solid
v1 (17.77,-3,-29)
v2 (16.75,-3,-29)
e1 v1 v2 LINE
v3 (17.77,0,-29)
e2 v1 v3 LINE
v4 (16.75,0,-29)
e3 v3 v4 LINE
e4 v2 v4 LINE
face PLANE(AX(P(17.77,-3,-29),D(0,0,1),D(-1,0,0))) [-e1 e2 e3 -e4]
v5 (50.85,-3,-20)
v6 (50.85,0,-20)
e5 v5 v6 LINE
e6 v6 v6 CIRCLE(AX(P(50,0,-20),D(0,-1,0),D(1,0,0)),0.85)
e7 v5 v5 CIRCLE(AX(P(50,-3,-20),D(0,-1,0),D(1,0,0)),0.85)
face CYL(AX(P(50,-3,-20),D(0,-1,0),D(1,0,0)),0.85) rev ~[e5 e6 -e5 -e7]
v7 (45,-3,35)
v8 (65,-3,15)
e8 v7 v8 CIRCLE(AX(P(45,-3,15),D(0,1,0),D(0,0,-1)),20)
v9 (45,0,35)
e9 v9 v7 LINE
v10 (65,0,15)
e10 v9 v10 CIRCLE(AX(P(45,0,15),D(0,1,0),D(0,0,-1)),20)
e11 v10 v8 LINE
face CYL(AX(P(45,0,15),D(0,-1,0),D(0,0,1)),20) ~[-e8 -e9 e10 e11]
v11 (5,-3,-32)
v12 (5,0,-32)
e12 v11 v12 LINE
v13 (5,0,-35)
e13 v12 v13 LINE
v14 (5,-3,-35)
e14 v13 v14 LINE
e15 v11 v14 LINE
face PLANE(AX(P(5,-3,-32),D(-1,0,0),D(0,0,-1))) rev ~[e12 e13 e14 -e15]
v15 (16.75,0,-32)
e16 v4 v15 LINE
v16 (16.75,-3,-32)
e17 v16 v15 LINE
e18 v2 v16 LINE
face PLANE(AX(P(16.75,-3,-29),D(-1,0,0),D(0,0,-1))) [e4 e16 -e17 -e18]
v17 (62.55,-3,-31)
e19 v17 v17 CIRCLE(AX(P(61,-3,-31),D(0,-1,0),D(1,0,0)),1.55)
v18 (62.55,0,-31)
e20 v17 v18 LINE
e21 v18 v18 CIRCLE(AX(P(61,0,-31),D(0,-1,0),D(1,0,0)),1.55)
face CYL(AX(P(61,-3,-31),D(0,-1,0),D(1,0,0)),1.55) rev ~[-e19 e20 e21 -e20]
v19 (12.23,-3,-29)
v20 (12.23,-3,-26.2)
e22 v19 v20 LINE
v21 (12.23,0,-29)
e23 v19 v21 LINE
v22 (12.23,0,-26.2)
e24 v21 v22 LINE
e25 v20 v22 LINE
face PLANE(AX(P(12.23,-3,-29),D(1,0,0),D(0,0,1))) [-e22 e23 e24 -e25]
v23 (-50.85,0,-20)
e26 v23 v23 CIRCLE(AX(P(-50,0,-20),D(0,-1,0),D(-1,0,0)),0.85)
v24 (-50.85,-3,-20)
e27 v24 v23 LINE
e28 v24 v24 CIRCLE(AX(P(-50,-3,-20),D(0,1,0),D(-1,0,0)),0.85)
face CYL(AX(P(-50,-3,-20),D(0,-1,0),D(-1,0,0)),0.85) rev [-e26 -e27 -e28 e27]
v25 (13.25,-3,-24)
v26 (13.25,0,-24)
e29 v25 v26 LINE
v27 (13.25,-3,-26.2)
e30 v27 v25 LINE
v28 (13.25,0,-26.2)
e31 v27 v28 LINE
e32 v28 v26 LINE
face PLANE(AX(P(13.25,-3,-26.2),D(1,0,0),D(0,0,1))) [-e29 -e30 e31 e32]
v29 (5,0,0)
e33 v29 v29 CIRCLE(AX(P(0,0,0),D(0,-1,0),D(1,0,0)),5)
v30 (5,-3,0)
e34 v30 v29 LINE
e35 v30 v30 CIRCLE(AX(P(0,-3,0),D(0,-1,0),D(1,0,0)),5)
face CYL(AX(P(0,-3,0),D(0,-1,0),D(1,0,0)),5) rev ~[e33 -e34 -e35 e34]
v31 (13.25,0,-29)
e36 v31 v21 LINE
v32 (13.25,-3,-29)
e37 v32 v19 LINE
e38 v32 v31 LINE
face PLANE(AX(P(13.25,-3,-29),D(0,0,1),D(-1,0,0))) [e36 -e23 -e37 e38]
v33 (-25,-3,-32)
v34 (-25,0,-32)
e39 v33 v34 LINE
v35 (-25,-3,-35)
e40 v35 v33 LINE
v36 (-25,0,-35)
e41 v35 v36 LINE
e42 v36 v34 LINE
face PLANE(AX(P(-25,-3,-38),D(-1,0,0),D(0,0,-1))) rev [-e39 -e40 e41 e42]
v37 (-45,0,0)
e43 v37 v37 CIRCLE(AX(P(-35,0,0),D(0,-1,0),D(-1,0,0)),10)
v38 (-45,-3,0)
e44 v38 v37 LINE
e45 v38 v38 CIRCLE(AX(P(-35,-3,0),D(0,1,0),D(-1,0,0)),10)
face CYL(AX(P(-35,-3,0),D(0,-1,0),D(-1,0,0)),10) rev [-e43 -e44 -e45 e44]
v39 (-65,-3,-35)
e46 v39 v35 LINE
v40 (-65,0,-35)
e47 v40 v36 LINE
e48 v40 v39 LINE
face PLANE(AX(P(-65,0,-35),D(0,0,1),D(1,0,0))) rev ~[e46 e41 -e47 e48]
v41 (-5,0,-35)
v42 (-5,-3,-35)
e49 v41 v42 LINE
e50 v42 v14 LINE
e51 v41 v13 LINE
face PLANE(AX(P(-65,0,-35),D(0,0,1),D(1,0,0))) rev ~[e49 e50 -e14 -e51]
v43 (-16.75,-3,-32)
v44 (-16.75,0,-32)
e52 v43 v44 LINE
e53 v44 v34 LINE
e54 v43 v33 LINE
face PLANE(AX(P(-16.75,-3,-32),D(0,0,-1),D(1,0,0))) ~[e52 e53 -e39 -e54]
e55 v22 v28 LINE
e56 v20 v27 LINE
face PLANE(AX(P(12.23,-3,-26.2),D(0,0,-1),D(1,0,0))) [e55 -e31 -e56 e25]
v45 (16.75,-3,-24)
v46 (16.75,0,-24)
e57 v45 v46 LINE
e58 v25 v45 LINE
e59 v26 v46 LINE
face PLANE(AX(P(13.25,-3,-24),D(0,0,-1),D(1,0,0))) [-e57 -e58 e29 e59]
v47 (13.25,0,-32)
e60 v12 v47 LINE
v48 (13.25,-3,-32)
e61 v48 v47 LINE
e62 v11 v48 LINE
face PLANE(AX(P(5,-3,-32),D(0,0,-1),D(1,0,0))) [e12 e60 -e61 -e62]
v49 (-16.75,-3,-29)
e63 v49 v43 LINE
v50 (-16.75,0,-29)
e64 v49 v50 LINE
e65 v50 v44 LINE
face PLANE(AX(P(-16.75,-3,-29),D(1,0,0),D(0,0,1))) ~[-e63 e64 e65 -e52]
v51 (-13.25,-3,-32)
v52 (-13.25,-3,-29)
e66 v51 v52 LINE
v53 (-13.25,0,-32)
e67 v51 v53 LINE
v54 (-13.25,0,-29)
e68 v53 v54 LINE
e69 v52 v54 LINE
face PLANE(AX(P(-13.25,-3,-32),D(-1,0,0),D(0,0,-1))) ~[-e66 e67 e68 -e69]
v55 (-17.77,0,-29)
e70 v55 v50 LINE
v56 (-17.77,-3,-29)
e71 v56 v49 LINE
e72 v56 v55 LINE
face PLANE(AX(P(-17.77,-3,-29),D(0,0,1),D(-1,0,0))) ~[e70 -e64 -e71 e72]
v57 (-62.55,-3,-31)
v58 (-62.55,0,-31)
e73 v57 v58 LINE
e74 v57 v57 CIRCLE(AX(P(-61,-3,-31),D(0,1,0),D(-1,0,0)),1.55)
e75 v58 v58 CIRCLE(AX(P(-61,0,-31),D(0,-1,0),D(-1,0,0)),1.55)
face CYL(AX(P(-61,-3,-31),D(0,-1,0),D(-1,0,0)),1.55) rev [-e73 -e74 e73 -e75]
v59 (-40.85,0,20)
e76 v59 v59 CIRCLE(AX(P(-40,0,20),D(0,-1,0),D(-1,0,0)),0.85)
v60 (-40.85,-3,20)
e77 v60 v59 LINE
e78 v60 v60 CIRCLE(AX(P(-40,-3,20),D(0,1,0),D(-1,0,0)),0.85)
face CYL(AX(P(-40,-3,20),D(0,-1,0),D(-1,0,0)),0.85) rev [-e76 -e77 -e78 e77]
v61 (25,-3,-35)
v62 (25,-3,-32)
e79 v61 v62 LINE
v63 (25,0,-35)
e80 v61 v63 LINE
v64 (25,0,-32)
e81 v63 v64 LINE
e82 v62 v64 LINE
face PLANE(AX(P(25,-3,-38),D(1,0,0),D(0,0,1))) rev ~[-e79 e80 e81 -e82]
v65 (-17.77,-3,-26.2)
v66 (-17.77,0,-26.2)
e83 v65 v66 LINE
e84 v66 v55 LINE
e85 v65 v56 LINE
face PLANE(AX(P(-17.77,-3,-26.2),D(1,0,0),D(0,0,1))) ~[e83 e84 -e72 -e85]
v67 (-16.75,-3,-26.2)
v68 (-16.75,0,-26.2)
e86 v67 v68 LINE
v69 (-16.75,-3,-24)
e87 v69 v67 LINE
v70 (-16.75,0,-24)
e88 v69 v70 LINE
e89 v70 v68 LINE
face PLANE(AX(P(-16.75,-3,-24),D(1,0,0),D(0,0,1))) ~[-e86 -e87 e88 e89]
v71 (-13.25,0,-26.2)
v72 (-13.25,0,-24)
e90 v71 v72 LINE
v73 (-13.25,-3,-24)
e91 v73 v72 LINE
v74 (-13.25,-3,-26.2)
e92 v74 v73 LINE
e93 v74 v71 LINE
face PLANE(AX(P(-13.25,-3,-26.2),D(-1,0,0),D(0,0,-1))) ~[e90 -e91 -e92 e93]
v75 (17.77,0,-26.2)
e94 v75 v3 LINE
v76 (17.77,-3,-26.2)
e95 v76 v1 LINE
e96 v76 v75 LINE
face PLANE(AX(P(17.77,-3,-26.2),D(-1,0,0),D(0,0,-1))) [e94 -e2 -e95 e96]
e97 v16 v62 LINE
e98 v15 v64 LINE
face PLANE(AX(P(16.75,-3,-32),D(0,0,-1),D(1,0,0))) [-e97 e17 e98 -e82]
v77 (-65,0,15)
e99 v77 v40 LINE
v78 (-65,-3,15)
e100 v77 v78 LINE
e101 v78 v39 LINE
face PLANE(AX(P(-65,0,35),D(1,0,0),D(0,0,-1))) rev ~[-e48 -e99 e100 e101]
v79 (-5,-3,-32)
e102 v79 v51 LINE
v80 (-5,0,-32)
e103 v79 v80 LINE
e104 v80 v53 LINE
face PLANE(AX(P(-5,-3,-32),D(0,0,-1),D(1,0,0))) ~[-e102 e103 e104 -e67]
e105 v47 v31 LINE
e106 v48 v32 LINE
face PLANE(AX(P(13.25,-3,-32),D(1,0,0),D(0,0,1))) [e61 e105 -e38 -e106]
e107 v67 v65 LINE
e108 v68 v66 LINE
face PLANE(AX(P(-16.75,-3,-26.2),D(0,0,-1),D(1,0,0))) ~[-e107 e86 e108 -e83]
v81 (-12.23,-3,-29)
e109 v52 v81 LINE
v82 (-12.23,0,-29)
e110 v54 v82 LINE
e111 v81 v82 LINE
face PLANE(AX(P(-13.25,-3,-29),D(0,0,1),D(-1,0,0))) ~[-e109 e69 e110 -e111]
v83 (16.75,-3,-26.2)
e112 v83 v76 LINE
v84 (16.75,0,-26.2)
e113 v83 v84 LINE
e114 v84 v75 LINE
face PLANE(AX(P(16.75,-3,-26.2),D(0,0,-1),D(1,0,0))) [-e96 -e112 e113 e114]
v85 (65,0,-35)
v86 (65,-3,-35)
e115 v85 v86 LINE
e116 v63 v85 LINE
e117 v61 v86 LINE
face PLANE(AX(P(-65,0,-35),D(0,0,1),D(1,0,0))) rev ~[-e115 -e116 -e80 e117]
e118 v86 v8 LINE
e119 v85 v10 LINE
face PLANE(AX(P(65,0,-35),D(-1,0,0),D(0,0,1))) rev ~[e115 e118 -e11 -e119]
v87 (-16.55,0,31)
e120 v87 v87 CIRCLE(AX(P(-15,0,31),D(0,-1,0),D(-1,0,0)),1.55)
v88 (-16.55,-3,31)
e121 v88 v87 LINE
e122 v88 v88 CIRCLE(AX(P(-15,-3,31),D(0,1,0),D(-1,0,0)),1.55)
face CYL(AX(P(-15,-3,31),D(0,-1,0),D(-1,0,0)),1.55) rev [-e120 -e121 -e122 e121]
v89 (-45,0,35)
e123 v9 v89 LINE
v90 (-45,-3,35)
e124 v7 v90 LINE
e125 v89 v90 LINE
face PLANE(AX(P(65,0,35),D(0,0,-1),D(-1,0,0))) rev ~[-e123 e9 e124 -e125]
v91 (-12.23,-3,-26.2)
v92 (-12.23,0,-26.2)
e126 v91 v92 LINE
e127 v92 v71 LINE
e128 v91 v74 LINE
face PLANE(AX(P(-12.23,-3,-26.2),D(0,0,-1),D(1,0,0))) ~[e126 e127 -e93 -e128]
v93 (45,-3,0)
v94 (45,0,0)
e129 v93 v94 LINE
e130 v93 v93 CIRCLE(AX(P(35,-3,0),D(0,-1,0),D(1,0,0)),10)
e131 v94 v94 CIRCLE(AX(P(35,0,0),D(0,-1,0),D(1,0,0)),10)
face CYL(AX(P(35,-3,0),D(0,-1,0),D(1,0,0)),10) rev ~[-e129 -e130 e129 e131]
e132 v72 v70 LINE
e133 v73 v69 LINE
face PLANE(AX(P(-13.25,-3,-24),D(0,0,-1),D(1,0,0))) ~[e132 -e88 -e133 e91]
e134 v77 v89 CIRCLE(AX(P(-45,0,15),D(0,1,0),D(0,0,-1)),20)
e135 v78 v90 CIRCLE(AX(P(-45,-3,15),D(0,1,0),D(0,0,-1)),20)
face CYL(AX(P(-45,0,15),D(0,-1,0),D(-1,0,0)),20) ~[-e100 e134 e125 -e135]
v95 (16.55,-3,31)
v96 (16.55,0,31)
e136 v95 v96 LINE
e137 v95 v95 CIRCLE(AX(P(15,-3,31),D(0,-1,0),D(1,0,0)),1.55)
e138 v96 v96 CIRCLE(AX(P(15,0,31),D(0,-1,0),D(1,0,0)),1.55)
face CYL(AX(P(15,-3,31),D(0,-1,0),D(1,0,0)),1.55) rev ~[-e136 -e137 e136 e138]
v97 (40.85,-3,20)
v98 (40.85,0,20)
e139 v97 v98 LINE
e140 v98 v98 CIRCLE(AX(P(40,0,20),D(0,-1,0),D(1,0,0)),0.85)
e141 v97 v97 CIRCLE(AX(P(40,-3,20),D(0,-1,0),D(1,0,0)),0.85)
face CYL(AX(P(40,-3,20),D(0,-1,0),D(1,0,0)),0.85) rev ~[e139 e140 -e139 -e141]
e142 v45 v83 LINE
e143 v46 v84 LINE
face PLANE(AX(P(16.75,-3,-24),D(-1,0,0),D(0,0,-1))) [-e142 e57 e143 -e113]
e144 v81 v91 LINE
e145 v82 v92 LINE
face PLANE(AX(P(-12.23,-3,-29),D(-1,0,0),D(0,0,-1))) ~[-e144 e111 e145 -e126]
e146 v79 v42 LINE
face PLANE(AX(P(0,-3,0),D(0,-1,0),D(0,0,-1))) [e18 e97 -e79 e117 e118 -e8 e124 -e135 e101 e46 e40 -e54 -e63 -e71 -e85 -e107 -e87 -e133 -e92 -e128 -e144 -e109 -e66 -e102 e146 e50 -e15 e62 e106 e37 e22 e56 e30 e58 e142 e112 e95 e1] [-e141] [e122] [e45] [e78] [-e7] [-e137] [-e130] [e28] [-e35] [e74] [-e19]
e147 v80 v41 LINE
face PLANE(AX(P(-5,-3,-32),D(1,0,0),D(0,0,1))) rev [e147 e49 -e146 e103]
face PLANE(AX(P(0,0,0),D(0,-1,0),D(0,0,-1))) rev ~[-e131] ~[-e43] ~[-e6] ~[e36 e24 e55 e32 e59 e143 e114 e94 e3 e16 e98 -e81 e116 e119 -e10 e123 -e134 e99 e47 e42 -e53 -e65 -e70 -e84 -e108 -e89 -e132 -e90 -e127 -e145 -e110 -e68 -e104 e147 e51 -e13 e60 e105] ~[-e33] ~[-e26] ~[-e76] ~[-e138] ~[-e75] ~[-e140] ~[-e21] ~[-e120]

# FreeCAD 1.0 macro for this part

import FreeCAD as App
import Part
import Sketcher


def edges_at(feature, points):
    """Names of the edges that pass closest to the given points."""
    edges = feature.Shape.Edges
    near = lambda p: min(range(len(edges)), key=lambda i: edges[i].distToShape(Part.Vertex(*p))[0])
    return sorted({f"Edge{near(p) + 1}" for p in points})


def add_polygon(sketch, points):
    """Adds a closed chain of lines whose ends are joined by coincident constraints."""
    first, n = sketch.GeometryCount, len(points)
    for a, b in zip(points, points[1:] + points[:1]):
        sketch.addGeometry(Part.LineSegment(App.Vector(*a, 0), App.Vector(*b, 0)), False)
    for i in range(n):
        sketch.addConstraint(Sketcher.Constraint("Coincident", first + i, 2, first + (i + 1) % n, 1))

doc = App.newDocument("Part")
body = doc.addObject("PartDesign::Body", "Body")

sketch1 = body.newObject("Sketcher::SketchObject", "Sketch")
sketch1.AttachmentSupport = (doc.getObject("XZ_Plane"), [""])
sketch1.MapMode = "FlatFace"
add_polygon(sketch1, [(-65, 35), (-65, -35), (65, -35), (65, 35)])
sketch1.addConstraint([
    Sketcher.Constraint("Vertical", 0),
    Sketcher.Constraint("Horizontal", 1),
    Sketcher.Constraint("Vertical", 2),
    Sketcher.Constraint("Horizontal", 3),
    Sketcher.Constraint("Symmetric", 0, 2, 2, 2, -1, 1),
    Sketcher.Constraint("DistanceX", 0, 2, -1, 1, 65.0),
    Sketcher.Constraint("DistanceY", 0, 2, 0, 1, 70.0),
])
pad1 = body.newObject("PartDesign::Pad", "Pad")
pad1.Profile = sketch1
pad1.Length = 3

sketch2 = body.newObject("Sketcher::SketchObject", "Sketch001")
sketch2.AttachmentSupport = (doc.getObject("XZ_Plane"), [""])
sketch2.MapMode = "FlatFace"
sketch2.AttachmentOffset = App.Placement(App.Vector(0, 0, 3), App.Rotation())
sketch2.addGeometry(Part.Circle(App.Vector(35, 0, 0), App.Vector(0, 0, 1), 10), False)
sketch2.addConstraint([
    Sketcher.Constraint("PointOnObject", 0, 3, -1),
    Sketcher.Constraint("Diameter", 0, 20.0),
    Sketcher.Constraint("DistanceX", -1, 1, 0, 3, 35.0),
])
pocket1 = body.newObject("PartDesign::Pocket", "Pocket")
pocket1.Profile = sketch2
pocket1.Length = 203.2796

sketch3 = body.newObject("Sketcher::SketchObject", "Sketch002")
sketch3.AttachmentSupport = (doc.getObject("XZ_Plane"), [""])
sketch3.MapMode = "FlatFace"
sketch3.AttachmentOffset = App.Placement(App.Vector(0, 0, 3), App.Rotation())
sketch3.addGeometry([
    Part.Circle(App.Vector(40, 20, 0), App.Vector(0, 0, 1), 0.8),
    Part.Circle(App.Vector(15, 31, 0), App.Vector(0, 0, 1), 1.6),
    Part.Circle(App.Vector(50, -20, 0), App.Vector(0, 0, 1), 0.8),
    Part.Circle(App.Vector(61, -31, 0), App.Vector(0, 0, 1), 1.6),
], False)
sketch3.addConstraint([
    Sketcher.Constraint("Equal", 0, 2),
    Sketcher.Constraint("Equal", 1, 3),
    Sketcher.Constraint("DistanceX", -1, 1, 0, 3, 40.0),
    Sketcher.Constraint("DistanceX", -1, 1, 2, 3, 50.0),
    Sketcher.Constraint("DistanceY", 2, 3, 0, 3, 40.0),
    Sketcher.Constraint("Diameter", 0, 1.7),
    Sketcher.Constraint("Diameter", 1, 3.1),
    Sketcher.Constraint("DistanceY", -1, 1, 0, 3, 20.0),
    Sketcher.Constraint("DistanceX", -1, 1, 1, 3, 15.0),
    Sketcher.Constraint("DistanceY", -1, 1, 1, 3, 31.0),
    Sketcher.Constraint("DistanceX", -1, 1, 3, 3, 61.0),
    Sketcher.Constraint("DistanceY", 3, 3, -1, 1, 31.0),
])
pocket2 = body.newObject("PartDesign::Pocket", "Pocket001")
pocket2.Profile = sketch3
pocket2.Length = 33.5111

sketch4 = body.newObject("Sketcher::SketchObject", "Sketch003")
sketch4.AttachmentSupport = (doc.getObject("XZ_Plane"), [""])
sketch4.MapMode = "FlatFace"
sketch4.AttachmentOffset = App.Placement(App.Vector(0, 0, 3), App.Rotation())
add_polygon(sketch4, [(13.2, -32), (5, -32), (5, -38), (25, -38), (25, -32), (16.8, -32), (16.8, -29), (17.8, -29), (17.8, -26.2), (16.8, -26.2), (16.8, -24), (13.2, -24), (13.2, -26.2), (12.2, -26.2), (12.2, -29), (13.2, -29)])
sketch4.addConstraint([
    Sketcher.Constraint("Horizontal", 0),
    Sketcher.Constraint("Vertical", 1),
    Sketcher.Constraint("Horizontal", 2),
    Sketcher.Constraint("Vertical", 3),
    Sketcher.Constraint("Horizontal", 4),
    Sketcher.Constraint("Vertical", 5),
    Sketcher.Constraint("Horizontal", 6),
    Sketcher.Constraint("Vertical", 7),
    Sketcher.Constraint("Horizontal", 8),
    Sketcher.Constraint("Vertical", 9),
    Sketcher.Constraint("Horizontal", 10),
    Sketcher.Constraint("Vertical", 11),
    Sketcher.Constraint("Horizontal", 12),
    Sketcher.Constraint("Vertical", 13),
    Sketcher.Constraint("Horizontal", 14),
    Sketcher.Constraint("Vertical", 15),
    Sketcher.Constraint("Horizontal", 0, 2, 3, 2),
    Sketcher.Constraint("Horizontal", 8, 2, 11, 2),
    Sketcher.Constraint("Horizontal", 6, 2, 13, 2),
    Sketcher.Constraint("Vertical", 5, 2, 8, 2),
    Sketcher.Constraint("Vertical", 11, 2, 14, 2),
    Sketcher.Constraint("Equal", 0, 4),
    Sketcher.Constraint("Equal", 8, 12),
    Sketcher.Constraint("DistanceX", -1, 1, 0, 2, 5.0),
    Sketcher.Constraint("DistanceY", 5, 2, 9, 2, 5.0),
    Sketcher.Constraint("DistanceX", 2, 1, 2, 2, 20.0),
    Sketcher.Constraint("DistanceY", 1, 2, 1, 1, 6.0),
    Sketcher.Constraint("DistanceY", 5, 1, 5, 2, 3.0),
    Sketcher.Constraint("DistanceX", -1, 1, 10, 2, 13.25),
    Sketcher.Constraint("DistanceX", -1, 1, 12, 2, 12.23),
    Sketcher.Constraint("DistanceY", 7, 1, 7, 2, 2.8),
    Sketcher.Constraint("DistanceY", 0, 2, -1, 1, 32.0),
])
pocket3 = body.newObject("PartDesign::Pocket", "Pocket002")
pocket3.Profile = sketch4
pocket3.Length = 7.0408
doc.recompute()

mirrored = body.newObject("PartDesign::Mirrored", "Mirrored")
mirrored.Originals = [pocket2, pocket1, pocket3]
mirrored.MirrorPlane = (doc.getObject("YZ_Plane"), [""])
body.Tip = mirrored
doc.recompute()

fillet = body.newObject("PartDesign::Fillet", "Fillet")
fillet.Base = (mirrored, edges_at(mirrored, [(-65, -1.5, 35), (65, -1.5, 35)]))
fillet.Radius = 20

sketch5 = body.newObject("Sketcher::SketchObject", "Sketch004")
sketch5.AttachmentSupport = (doc.getObject("XZ_Plane"), [""])
sketch5.MapMode = "FlatFace"
sketch5.AttachmentOffset = App.Placement(App.Vector(0, 0, 3), App.Rotation())
sketch5.addGeometry(Part.Circle(App.Vector(0, 0, 0), App.Vector(0, 0, 1), 5), False)
sketch5.addConstraint([
    Sketcher.Constraint("Coincident", 0, 3, -1, 1),
    Sketcher.Constraint("Diameter", 0, 10.0),
])
pocket4 = body.newObject("PartDesign::Pocket", "Pocket003")
pocket4.Profile = sketch5
pocket4.Length = 16.0842

doc.recompute()
